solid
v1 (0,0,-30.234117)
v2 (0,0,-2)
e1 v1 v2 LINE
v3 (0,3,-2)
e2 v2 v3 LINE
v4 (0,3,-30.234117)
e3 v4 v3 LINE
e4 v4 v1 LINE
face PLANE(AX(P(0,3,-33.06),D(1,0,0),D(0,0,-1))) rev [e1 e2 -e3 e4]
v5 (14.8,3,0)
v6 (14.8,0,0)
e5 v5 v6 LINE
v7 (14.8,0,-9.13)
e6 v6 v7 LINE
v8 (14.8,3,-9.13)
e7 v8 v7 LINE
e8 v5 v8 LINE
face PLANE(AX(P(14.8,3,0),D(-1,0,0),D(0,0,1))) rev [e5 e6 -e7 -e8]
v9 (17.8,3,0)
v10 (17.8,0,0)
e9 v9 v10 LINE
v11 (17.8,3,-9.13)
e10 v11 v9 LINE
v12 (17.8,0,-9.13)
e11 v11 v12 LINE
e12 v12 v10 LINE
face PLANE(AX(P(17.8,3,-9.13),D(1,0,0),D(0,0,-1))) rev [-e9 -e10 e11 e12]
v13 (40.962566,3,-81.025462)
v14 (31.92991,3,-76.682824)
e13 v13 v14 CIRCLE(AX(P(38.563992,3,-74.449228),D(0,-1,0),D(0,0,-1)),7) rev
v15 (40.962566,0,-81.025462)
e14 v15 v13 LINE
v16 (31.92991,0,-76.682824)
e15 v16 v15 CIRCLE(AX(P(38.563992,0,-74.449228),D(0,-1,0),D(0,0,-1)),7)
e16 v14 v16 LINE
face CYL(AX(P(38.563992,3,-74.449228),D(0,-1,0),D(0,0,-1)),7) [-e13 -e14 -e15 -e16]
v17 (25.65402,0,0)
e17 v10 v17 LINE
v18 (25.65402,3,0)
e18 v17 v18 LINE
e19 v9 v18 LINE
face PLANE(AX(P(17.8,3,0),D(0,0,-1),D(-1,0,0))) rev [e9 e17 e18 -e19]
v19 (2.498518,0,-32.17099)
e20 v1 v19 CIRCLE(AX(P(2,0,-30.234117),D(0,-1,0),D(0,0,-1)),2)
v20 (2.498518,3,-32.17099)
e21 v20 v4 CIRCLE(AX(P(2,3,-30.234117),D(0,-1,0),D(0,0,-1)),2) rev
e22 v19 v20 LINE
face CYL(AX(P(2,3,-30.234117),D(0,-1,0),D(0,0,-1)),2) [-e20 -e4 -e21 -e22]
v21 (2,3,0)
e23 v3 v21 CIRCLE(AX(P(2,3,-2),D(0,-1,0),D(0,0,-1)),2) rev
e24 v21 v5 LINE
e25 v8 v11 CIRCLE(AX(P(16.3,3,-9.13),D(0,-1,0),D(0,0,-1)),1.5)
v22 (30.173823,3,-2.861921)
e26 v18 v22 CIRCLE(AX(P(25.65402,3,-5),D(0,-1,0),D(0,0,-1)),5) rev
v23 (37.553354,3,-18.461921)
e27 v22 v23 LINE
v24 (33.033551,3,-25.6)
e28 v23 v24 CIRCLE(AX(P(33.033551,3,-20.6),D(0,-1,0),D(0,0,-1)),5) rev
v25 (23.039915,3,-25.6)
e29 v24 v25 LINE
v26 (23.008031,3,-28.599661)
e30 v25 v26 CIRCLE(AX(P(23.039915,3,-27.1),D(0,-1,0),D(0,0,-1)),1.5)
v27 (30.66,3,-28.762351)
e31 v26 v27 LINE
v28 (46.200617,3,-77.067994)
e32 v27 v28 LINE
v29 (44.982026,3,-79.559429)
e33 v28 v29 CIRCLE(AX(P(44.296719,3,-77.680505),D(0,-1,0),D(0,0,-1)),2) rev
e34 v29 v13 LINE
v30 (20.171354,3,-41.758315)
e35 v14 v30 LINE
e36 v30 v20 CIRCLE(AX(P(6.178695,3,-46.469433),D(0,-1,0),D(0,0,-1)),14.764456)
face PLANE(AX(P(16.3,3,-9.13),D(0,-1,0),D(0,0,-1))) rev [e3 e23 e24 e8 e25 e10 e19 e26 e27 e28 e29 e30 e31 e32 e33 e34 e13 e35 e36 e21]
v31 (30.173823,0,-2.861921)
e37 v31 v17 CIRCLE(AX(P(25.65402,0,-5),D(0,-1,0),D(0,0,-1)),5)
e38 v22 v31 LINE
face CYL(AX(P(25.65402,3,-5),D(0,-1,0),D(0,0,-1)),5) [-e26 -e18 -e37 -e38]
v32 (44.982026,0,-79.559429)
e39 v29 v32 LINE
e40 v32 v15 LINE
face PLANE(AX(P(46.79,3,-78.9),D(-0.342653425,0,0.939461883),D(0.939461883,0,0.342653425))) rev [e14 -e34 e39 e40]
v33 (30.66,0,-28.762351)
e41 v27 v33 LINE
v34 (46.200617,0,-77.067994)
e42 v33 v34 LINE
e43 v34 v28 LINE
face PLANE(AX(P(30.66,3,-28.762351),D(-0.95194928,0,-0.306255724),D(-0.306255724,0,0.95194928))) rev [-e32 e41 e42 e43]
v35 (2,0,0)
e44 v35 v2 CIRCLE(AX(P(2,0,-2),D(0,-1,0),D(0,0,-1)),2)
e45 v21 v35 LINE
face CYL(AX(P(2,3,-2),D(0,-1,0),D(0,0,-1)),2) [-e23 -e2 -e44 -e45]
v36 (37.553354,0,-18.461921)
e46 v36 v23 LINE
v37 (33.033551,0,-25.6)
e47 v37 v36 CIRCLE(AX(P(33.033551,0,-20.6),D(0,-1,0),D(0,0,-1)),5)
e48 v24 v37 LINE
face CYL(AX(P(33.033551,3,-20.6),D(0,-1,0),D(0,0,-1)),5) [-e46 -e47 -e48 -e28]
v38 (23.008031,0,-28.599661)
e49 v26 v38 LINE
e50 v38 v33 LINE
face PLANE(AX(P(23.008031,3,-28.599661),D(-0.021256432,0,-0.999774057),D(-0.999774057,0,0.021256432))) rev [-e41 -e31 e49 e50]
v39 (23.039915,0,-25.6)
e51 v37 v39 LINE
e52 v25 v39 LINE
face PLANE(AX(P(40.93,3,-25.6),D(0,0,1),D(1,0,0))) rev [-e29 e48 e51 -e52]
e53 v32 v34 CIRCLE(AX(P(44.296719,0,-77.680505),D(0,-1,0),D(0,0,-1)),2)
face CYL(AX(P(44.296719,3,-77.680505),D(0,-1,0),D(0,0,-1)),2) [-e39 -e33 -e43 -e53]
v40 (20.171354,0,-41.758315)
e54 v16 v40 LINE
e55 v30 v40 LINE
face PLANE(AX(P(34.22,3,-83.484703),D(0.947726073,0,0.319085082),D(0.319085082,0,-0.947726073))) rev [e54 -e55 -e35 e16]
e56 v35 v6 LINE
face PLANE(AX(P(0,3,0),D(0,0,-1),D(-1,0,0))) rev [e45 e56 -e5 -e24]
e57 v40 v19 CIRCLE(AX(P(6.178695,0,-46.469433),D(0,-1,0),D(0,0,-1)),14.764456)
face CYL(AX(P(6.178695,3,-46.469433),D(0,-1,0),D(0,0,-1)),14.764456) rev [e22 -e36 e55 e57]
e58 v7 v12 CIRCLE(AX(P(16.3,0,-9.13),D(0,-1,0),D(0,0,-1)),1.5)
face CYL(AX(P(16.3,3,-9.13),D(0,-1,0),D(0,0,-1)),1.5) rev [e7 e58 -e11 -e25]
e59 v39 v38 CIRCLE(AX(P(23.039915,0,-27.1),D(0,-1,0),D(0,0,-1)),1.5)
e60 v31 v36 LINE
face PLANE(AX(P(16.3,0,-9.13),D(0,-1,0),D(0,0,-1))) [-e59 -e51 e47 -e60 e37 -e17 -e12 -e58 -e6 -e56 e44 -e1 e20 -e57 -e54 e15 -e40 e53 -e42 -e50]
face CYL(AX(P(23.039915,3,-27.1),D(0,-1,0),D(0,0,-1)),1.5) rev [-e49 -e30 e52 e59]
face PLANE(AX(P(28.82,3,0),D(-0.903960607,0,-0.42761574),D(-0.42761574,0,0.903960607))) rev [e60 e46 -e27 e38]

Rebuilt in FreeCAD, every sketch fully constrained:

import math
import FreeCAD as App
import Part
import Sketcher
from FreeCAD import Vector
Q = App.Units.Quantity


def edges_at(feature, points):
    """Names of the edges that pass closest to the given points."""
    edges = feature.Shape.Edges
    near = lambda p: min(range(len(edges)), key=lambda i: edges[i].distToShape(Part.Vertex(*p))[0])
    return sorted({f"Edge{near(p) + 1}" for p in points})

doc = App.newDocument("Part")
body = doc.addObject("PartDesign::Body", "Body")

# Sketch on XZ plane
sketch1 = body.newObject("Sketcher::SketchObject", "Sketch")
sketch1.AttachmentSupport = (doc.getObject("XZ_Plane"), [""])
sketch1.MapMode = "FlatFace"
sketch1.addGeometry([
    Part.LineSegment(Vector(0, -33.1, 0), Vector(0, 0, 0)),  # 0
    Part.LineSegment(Vector(0, 0, 0), Vector(14.8, 0, 0)),  # 1
    Part.LineSegment(Vector(14.8, 0, 0), Vector(14.8, -9.1, 0)),  # 2
    Part.ArcOfCircle(Part.Circle(Vector(16.3, -9.1, 0), Vector(0, 0, 1), 1.5), math.radians(180), math.radians(360)),  # 3
    Part.LineSegment(Vector(17.8, -9.1, 0), Vector(17.8, 0, 0)),  # 4
    Part.LineSegment(Vector(17.8, 0, 0), Vector(28.8, 0, 0)),  # 5
    Part.LineSegment(Vector(28.8, 0, 0), Vector(40.9, -25.6, 0)),  # 6
    Part.LineSegment(Vector(40.9, -25.6, 0), Vector(23, -25.6, 0)),  # 7
    Part.ArcOfCircle(Part.Circle(Vector(23, -27.1, 0), Vector(0, 0, 1), 1.5), math.radians(90), math.radians(269)),  # 8
    Part.LineSegment(Vector(23, -28.6, 0), Vector(30.7, -28.8, 0)),  # 9
    Part.LineSegment(Vector(30.7, -28.8, 0), Vector(46.8, -78.9, 0)),  # 10
    Part.LineSegment(Vector(46.8, -78.9, 0), Vector(34.2, -83.5, 0)),  # 11
    Part.LineSegment(Vector(34.2, -83.5, 0), Vector(20.2, -41.8, 0)),  # 12
    Part.ArcOfCircle(Part.Circle(Vector(6.2, -46.5, 0), Vector(0, 0, 1), 14.8), math.radians(19), math.radians(115)),  # 13
], False)
sketch1.addConstraint([
    Sketcher.Constraint("Coincident", 0, 2, 1, 1),
    Sketcher.Constraint("Coincident", 1, 2, 2, 1),
    Sketcher.Constraint("Tangent", 2, 2, 3, 1),
    Sketcher.Constraint("Tangent", 3, 2, 4, 1),
    Sketcher.Constraint("Coincident", 4, 2, 5, 1),
    Sketcher.Constraint("Coincident", 5, 2, 6, 1),
    Sketcher.Constraint("Coincident", 6, 2, 7, 1),
    Sketcher.Constraint("Tangent", 7, 2, 8, 1),
    Sketcher.Constraint("Tangent", 8, 2, 9, 1),
    Sketcher.Constraint("Coincident", 9, 2, 10, 1),
    Sketcher.Constraint("Coincident", 10, 2, 11, 1),
    Sketcher.Constraint("Coincident", 11, 2, 12, 1),
    Sketcher.Constraint("Tangent", 12, 2, 13, 1),
    Sketcher.Constraint("Coincident", 13, 2, 0, 1),
    Sketcher.Constraint("Vertical", 0),
    Sketcher.Constraint("Horizontal", 1),
    Sketcher.Constraint("Vertical", 2),
    Sketcher.Constraint("Vertical", 4),
    Sketcher.Constraint("Horizontal", 5),
    Sketcher.Constraint("Horizontal", 7),
    Sketcher.Constraint("Coincident", 0, 2, -1, 1),
    Sketcher.Constraint("Equal", 3, 8),
    Sketcher.Constraint("PointOnObject", 4, 2, -1),
    Sketcher.Constraint("Radius", 3, Q("1.5 mm")),
    Sketcher.Constraint("DistanceX", 1, 1, 1, 2, Q("14.8 mm")),
    Sketcher.Constraint("DistanceX", 5, 1, 5, 2, Q("11.02 mm")),
    Sketcher.Constraint("DistanceY", 0, 1, 0, 2, Q("33.06 mm")),
    Sketcher.Constraint("DistanceY", 2, 2, 2, 1, Q("9.13 mm")),
    Sketcher.Constraint("DistanceY", 8, 3, -1, 1, Q("27.1 mm")),
    Sketcher.Constraint("DistanceY", 10, 2, -1, 1, Q("78.9 mm")),
    Sketcher.Constraint("Distance", 11, Q("13.38 mm")),
    Sketcher.Constraint("DistanceX", -1, 1, 6, 2, Q("40.93 mm")),
    Sketcher.Constraint("DistanceX", -1, 1, 9, 2, Q("30.66 mm")),
    Sketcher.Constraint("DistanceX", -1, 1, 10, 2, Q("46.79 mm")),
    Sketcher.Constraint("DistanceX", -1, 1, 11, 2, Q("34.22 mm")),
    Sketcher.Constraint("Radius", 13, Q("14.764456 mm")),
    Sketcher.Constraint("Distance", 9, Q("7.653699 mm")),
    Sketcher.Constraint("Distance", 12, Q("44.027899 mm")),
    Sketcher.Constraint("DistanceX", 7, 2, 7, 1, Q("17.890085 mm")),
])
pad1 = body.newObject("PartDesign::Pad", "Pad")
pad1.Profile = sketch1
pad1.Length = 3
pad1.Reversed = True
doc.recompute()

fillet = body.newObject("PartDesign::Fillet", "Fillet")
fillet.Base = (pad1, edges_at(pad1, [(40.93, 1.5, -25.6)]))
fillet.Radius = 5
doc.recompute()

fillet2 = body.newObject("PartDesign::Fillet", "Fillet001")
fillet2.Base = (fillet, edges_at(fillet, [(0, 1.5, -33.06)]))
fillet2.Radius = 2
doc.recompute()

fillet3 = body.newObject("PartDesign::Fillet", "Fillet002")
fillet3.Base = (fillet2, edges_at(fillet2, [(34.22, 1.5, -83.485)]))
fillet3.Radius = 7
doc.recompute()

fillet4 = body.newObject("PartDesign::Fillet", "Fillet003")
fillet4.Base = (fillet3, edges_at(fillet3, [(0, 1.5, 0), (46.79, 1.5, -78.9)]))
fillet4.Radius = 2
doc.recompute()

fillet5 = body.newObject("PartDesign::Fillet", "Fillet004")
fillet5.Base = (fillet4, edges_at(fillet4, [(28.82, 1.5, 0)]))
fillet5.Radius = 5

doc.recompute()
